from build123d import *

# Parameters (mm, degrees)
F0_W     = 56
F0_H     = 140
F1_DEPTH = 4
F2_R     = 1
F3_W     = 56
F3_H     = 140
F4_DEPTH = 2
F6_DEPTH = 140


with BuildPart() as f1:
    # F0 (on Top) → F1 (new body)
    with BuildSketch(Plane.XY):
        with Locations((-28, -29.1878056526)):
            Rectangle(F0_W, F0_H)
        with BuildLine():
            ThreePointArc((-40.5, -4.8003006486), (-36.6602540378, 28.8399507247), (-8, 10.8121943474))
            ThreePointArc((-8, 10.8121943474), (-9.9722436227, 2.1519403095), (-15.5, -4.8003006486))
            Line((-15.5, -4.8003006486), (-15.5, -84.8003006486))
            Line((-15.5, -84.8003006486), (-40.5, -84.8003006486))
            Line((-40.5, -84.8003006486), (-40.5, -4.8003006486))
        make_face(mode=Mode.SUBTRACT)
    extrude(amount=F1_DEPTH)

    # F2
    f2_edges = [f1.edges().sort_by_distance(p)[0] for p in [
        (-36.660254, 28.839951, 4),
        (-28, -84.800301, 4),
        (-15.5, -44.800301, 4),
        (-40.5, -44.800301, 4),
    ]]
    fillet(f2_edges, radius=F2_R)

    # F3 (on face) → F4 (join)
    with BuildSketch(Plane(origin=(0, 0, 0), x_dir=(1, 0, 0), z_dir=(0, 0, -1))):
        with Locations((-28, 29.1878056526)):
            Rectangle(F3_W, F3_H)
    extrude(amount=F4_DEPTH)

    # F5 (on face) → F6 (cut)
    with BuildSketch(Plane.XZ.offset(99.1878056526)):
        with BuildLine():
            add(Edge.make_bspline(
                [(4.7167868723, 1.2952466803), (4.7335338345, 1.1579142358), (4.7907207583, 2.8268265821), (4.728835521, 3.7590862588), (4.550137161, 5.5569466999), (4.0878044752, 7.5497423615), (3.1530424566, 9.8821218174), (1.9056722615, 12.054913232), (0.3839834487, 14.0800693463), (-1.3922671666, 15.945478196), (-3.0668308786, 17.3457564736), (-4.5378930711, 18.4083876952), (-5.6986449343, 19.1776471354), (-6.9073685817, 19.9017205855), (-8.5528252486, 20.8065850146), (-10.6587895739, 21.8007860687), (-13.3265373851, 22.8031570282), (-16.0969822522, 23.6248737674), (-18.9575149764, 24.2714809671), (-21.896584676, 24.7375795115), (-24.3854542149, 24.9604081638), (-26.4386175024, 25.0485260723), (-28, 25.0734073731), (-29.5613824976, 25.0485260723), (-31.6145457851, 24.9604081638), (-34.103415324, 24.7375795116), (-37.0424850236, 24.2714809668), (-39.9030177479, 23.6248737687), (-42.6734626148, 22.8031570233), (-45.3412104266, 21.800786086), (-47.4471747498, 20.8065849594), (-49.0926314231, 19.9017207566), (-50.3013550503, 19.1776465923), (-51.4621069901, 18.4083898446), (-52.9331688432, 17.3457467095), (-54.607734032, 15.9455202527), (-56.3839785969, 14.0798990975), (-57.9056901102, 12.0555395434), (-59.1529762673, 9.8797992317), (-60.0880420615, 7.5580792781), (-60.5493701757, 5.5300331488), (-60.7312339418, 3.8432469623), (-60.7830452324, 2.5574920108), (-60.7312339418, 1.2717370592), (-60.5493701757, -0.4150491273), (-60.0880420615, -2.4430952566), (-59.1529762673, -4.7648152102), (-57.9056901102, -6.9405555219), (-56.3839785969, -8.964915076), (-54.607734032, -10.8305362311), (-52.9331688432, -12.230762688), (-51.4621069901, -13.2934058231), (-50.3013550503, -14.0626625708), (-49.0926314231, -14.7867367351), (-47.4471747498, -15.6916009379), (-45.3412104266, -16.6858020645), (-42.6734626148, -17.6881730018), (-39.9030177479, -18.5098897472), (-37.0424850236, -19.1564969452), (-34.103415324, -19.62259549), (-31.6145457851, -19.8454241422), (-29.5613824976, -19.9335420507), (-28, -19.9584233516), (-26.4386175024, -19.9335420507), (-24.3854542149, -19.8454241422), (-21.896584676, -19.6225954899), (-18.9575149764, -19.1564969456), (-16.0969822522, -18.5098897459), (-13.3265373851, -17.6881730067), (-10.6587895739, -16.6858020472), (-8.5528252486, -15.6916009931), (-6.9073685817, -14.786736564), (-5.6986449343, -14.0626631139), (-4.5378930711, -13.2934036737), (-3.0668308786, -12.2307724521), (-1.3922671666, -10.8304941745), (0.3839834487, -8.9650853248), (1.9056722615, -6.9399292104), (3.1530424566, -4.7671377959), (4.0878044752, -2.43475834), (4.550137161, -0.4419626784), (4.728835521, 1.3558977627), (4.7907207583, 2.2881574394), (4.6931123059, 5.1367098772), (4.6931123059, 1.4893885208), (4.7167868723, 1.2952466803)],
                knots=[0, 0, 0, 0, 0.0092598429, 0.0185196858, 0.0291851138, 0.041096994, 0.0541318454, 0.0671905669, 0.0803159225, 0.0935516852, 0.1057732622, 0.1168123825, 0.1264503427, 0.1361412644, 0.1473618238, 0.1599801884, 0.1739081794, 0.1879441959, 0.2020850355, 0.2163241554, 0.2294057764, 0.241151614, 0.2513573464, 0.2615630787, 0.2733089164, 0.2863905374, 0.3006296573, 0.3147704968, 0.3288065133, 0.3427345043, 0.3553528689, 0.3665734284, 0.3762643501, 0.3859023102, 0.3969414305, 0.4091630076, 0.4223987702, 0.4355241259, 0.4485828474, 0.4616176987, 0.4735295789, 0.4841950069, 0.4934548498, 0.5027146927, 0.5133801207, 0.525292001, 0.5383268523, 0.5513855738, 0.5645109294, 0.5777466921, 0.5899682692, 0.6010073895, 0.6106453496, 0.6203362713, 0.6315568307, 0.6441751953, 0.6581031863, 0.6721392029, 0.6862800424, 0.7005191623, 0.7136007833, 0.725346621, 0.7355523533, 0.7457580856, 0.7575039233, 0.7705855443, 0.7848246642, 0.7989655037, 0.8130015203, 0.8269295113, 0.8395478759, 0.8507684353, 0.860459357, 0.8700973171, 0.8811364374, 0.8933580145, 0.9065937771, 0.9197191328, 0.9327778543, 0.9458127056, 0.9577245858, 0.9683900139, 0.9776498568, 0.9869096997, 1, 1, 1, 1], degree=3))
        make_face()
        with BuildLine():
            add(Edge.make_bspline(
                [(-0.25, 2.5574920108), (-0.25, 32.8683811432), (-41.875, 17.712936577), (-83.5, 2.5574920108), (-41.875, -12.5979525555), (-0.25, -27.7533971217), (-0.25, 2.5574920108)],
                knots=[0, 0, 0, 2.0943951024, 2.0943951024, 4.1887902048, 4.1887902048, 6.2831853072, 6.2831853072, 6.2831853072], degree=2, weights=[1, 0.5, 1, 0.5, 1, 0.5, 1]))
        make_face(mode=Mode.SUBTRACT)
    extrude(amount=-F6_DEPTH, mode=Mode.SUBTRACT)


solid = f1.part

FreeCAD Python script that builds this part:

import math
import FreeCAD as App
import Part
import Sketcher
from FreeCAD import Vector
Q = App.Units.Quantity


def edges_at(feature, points):
    """Names of the edges that pass closest to the given points."""
    edges = feature.Shape.Edges
    near = lambda p: min(range(len(edges)), key=lambda i: edges[i].distToShape(Part.Vertex(*p))[0])
    return sorted({f"Edge{near(p) + 1}" for p in points})


def add_polygon(sketch, points):
    """Adds a closed chain of lines whose ends are joined by coincident constraints."""
    first, n = sketch.GeometryCount, len(points)
    for a, b in zip(points, points[1:] + points[:1]):
        sketch.addGeometry(Part.LineSegment(App.Vector(*a, 0), App.Vector(*b, 0)), False)
    for i in range(n):
        sketch.addConstraint(Sketcher.Constraint("Coincident", first + i, 2, first + (i + 1) % n, 1))

doc = App.newDocument("Part")
body = doc.addObject("PartDesign::Body", "Body")

sketch1 = body.newObject("Sketcher::SketchObject", "Sketch")
sketch1.AttachmentSupport = (doc.getObject("XY_Plane"), [""])
sketch1.MapMode = "FlatFace"
add_polygon(sketch1, [(-56, 40.812194), (-56, -99.187806), (0, -99.187806), (0, 40.812194)])
sketch1.addGeometry(Part.LineSegment(Vector(-40.5, -84.800301, 0), Vector(-40.5, -4.800301, 0)), False)
sketch1.addGeometry(Part.ArcOfCircle(Part.Circle(Vector(-28, 10.812194, 0), Vector(0, 0, 1), 20), math.radians(-51.317813), math.radians(231.317813)), False)
sketch1.addGeometry(Part.LineSegment(Vector(-15.5, -4.800301, 0), Vector(-15.5, -84.800301, 0)), False)
sketch1.addGeometry(Part.LineSegment(Vector(-15.5, -84.800301, 0), Vector(-40.5, -84.800301, 0)), False)
sketch1.addConstraint(Sketcher.Constraint("Coincident", 4, 2, 5, 2))
sketch1.addConstraint(Sketcher.Constraint("Coincident", 5, 1, 6, 1))
sketch1.addConstraint(Sketcher.Constraint("Coincident", 6, 2, 7, 1))
sketch1.addConstraint(Sketcher.Constraint("Coincident", 7, 2, 4, 1))
sketch1.addConstraint(Sketcher.Constraint("Vertical", 0))
sketch1.addConstraint(Sketcher.Constraint("Horizontal", 1))
sketch1.addConstraint(Sketcher.Constraint("Vertical", 2))
sketch1.addConstraint(Sketcher.Constraint("Horizontal", 3))
sketch1.addConstraint(Sketcher.Constraint("Vertical", 4))
sketch1.addConstraint(Sketcher.Constraint("Vertical", 6))
sketch1.addConstraint(Sketcher.Constraint("Horizontal", 7))
sketch1.addConstraint(Sketcher.Constraint("PointOnObject", 1, 2, -2))
sketch1.addConstraint(Sketcher.Constraint("Horizontal", 4, 2, 5, 1))
sketch1.addConstraint(Sketcher.Constraint("Radius", 5, Q("20 mm")))
sketch1.addConstraint(Sketcher.Constraint("DistanceX", 1, 1, 1, 2, Q("56 mm")))
sketch1.addConstraint(Sketcher.Constraint("DistanceX", 7, 2, 7, 1, Q("25 mm")))
sketch1.addConstraint(Sketcher.Constraint("DistanceY", 0, 2, 0, 1, Q("140 mm")))
sketch1.addConstraint(Sketcher.Constraint("DistanceY", 4, 1, 4, 2, Q("80 mm")))
sketch1.addConstraint(Sketcher.Constraint("DistanceX", 5, 3, -1, 1, Q("28 mm")))
sketch1.addConstraint(Sketcher.Constraint("DistanceY", 0, 2, 5, 3, Q("110 mm")))
sketch1.addConstraint(Sketcher.Constraint("DistanceY", 4, 2, -1, 1, Q("4.800301 mm")))
pad1 = body.newObject("PartDesign::Pad", "Pad")
pad1.Profile = sketch1
pad1.Length = 4
doc.recompute()

fillet = body.newObject("PartDesign::Fillet", "Fillet")
fillet.Base = (pad1, edges_at(pad1, [
    (-28, 30.812, 4),
    (-28, -84.8, 4),
    (-15.5, -44.8, 4),
    (-40.5, -44.8, 4),
]))
fillet.Radius = 1

sketch2 = body.newObject("Sketcher::SketchObject", "Sketch001")
sketch2.AttachmentSupport = (doc.getObject("XY_Plane"), [""])
sketch2.MapMode = "FlatFace"
add_polygon(sketch2, [(-56, -99.187806), (-56, 40.812194), (0, 40.812194), (0, -99.187806)])
sketch2.addConstraint(Sketcher.Constraint("Vertical", 0))
sketch2.addConstraint(Sketcher.Constraint("Horizontal", 1))
sketch2.addConstraint(Sketcher.Constraint("Vertical", 2))
sketch2.addConstraint(Sketcher.Constraint("Horizontal", 3))
sketch2.addConstraint(Sketcher.Constraint("PointOnObject", 1, 2, -2))
sketch2.addConstraint(Sketcher.Constraint("DistanceX", 1, 1, 1, 2, Q("56 mm")))
sketch2.addConstraint(Sketcher.Constraint("DistanceY", 0, 1, 0, 2, Q("140 mm")))
sketch2.addConstraint(Sketcher.Constraint("DistanceY", -1, 1, 0, 2, Q("40.812194 mm")))
pad2 = body.newObject("PartDesign::Pad", "Pad001")
pad2.Profile = sketch2
pad2.Length = 2
pad2.Reversed = True

sketch3 = body.newObject("Sketcher::SketchObject", "Sketch002")
sketch3.AttachmentSupport = (doc.getObject("XZ_Plane"), [""])
sketch3.MapMode = "FlatFace"
sketch3.AttachmentOffset = App.Placement(Vector(0, 0, 99.187806), App.Rotation())
sketch3.addGeometry(Part.BSplineCurve([Vector(4.716787, 1.295247, 0), Vector(4.733534, 1.157914, 0), Vector(4.790721, 2.826827, 0), Vector(4.728836, 3.759086, 0), Vector(4.550137, 5.556947, 0), Vector(4.087804, 7.549742, 0), Vector(3.153042, 9.882122, 0), Vector(1.905672, 12.054913, 0), Vector(0.383983, 14.080069, 0), Vector(-1.392267, 15.945478, 0), Vector(-3.066831, 17.345756, 0), Vector(-4.537893, 18.408388, 0), Vector(-5.698645, 19.177647, 0), Vector(-6.907369, 19.901721, 0), Vector(-8.552825, 20.806585, 0), Vector(-10.65879, 21.800786, 0), Vector(-13.326537, 22.803157, 0), Vector(-16.096982, 23.624874, 0), Vector(-18.957515, 24.271481, 0), Vector(-21.896585, 24.73758, 0), Vector(-24.385454, 24.960408, 0), Vector(-26.438618, 25.048526, 0), Vector(-28, 25.073407, 0), Vector(-29.561382, 25.048526, 0), Vector(-31.614546, 24.960408, 0), Vector(-34.103415, 24.73758, 0), Vector(-37.042485, 24.271481, 0), Vector(-39.903018, 23.624874, 0), Vector(-42.673463, 22.803157, 0), Vector(-45.34121, 21.800786, 0), Vector(-47.447175, 20.806585, 0), Vector(-49.092631, 19.901721, 0), Vector(-50.301355, 19.177647, 0), Vector(-51.462107, 18.40839, 0), Vector(-52.933169, 17.345747, 0), Vector(-54.607734, 15.94552, 0), Vector(-56.383979, 14.079899, 0), Vector(-57.90569, 12.05554, 0), Vector(-59.152976, 9.879799, 0), Vector(-60.088042, 7.558079, 0), Vector(-60.54937, 5.530033, 0), Vector(-60.731234, 3.843247, 0), Vector(-60.783045, 2.557492, 0), Vector(-60.731234, 1.271737, 0), Vector(-60.54937, -0.415049, 0), Vector(-60.088042, -2.443095, 0), Vector(-59.152976, -4.764815, 0), Vector(-57.90569, -6.940556, 0), Vector(-56.383979, -8.964915, 0), Vector(-54.607734, -10.830536, 0), Vector(-52.933169, -12.230763, 0), Vector(-51.462107, -13.293406, 0), Vector(-50.301355, -14.062663, 0), Vector(-49.092631, -14.786737, 0), Vector(-47.447175, -15.691601, 0), Vector(-45.34121, -16.685802, 0), Vector(-42.673463, -17.688173, 0), Vector(-39.903018, -18.50989, 0), Vector(-37.042485, -19.156497, 0), Vector(-34.103415, -19.622595, 0), Vector(-31.614546, -19.845424, 0), Vector(-29.561382, -19.933542, 0), Vector(-28, -19.958423, 0), Vector(-26.438618, -19.933542, 0), Vector(-24.385454, -19.845424, 0), Vector(-21.896585, -19.622595, 0), Vector(-18.957515, -19.156497, 0), Vector(-16.096982, -18.50989, 0), Vector(-13.326537, -17.688173, 0), Vector(-10.65879, -16.685802, 0), Vector(-8.552825, -15.691601, 0), Vector(-6.907369, -14.786737, 0), Vector(-5.698645, -14.062663, 0), Vector(-4.537893, -13.293404, 0), Vector(-3.066831, -12.230772, 0), Vector(-1.392267, -10.830494, 0), Vector(0.383983, -8.965085, 0), Vector(1.905672, -6.939929, 0), Vector(3.153042, -4.767138, 0), Vector(4.087804, -2.434758, 0), Vector(4.550137, -0.441963, 0), Vector(4.728836, 1.355898, 0), Vector(4.790721, 2.288157, 0), Vector(4.693112, 5.13671, 0), Vector(4.693112, 1.489389, 0), Vector(4.716787, 1.295247, 0)], [4, 1, 1, 1, 1, 1, 1, 1, 1, 1, 1, 1, 1, 1, 1, 1, 1, 1, 1, 1, 1, 1, 1, 1, 1, 1, 1, 1, 1, 1, 1, 1, 1, 1, 1, 1, 1, 1, 1, 1, 1, 1, 1, 1, 1, 1, 1, 1, 1, 1, 1, 1, 1, 1, 1, 1, 1, 1, 1, 1, 1, 1, 1, 1, 1, 1, 1, 1, 1, 1, 1, 1, 1, 1, 1, 1, 1, 1, 1, 1, 1, 1, 1, 4], [0, 0.009259843, 0.018519686, 0.029185114, 0.041096994, 0.054131845, 0.067190567, 0.080315922, 0.093551685, 0.105773262, 0.116812383, 0.126450343, 0.136141264, 0.147361824, 0.159980188, 0.173908179, 0.187944196, 0.202085036, 0.216324155, 0.229405776, 0.241151614, 0.251357346, 0.261563079, 0.273308916, 0.286390537, 0.300629657, 0.314770497, 0.328806513, 0.342734504, 0.355352869, 0.366573428, 0.37626435, 0.38590231, 0.396941431, 0.409163008, 0.42239877, 0.435524126, 0.448582847, 0.461617699, 0.473529579, 0.484195007, 0.49345485, 0.502714693, 0.513380121, 0.525292001, 0.538326852, 0.551385574, 0.564510929, 0.577746692, 0.589968269, 0.601007389, 0.61064535, 0.620336271, 0.631556831, 0.644175195, 0.658103186, 0.672139203, 0.686280042, 0.700519162, 0.713600783, 0.725346621, 0.735552353, 0.745758086, 0.757503923, 0.770585544, 0.784824664, 0.798965504, 0.81300152, 0.826929511, 0.839547876, 0.850768435, 0.860459357, 0.870097317, 0.881136437, 0.893358014, 0.906593777, 0.919719133, 0.932777854, 0.945812706, 0.957724586, 0.968390014, 0.977649857, 0.9869097, 1], False, 3, [1, 1, 1, 1, 1, 1, 1, 1, 1, 1, 1, 1, 1, 1, 1, 1, 1, 1, 1, 1, 1, 1, 1, 1, 1, 1, 1, 1, 1, 1, 1, 1, 1, 1, 1, 1, 1, 1, 1, 1, 1, 1, 1, 1, 1, 1, 1, 1, 1, 1, 1, 1, 1, 1, 1, 1, 1, 1, 1, 1, 1, 1, 1, 1, 1, 1, 1, 1, 1, 1, 1, 1, 1, 1, 1, 1, 1, 1, 1, 1, 1, 1, 1, 1, 1, 1], False), False)
sketch3.addGeometry(Part.BSplineCurve([Vector(-0.25, 2.557492, 0), Vector(-0.25, 32.868381, 0), Vector(-41.875, 17.712937, 0), Vector(-83.5, 2.557492, 0), Vector(-41.875, -12.597953, 0), Vector(-0.25, -27.753397, 0), Vector(-0.25, 2.557492, 0)], [3, 2, 2, 3], [0, 2.094395102, 4.188790205, 6.283185307], False, 2, [1, 0.5, 1, 0.5, 1, 0.5, 1], False), False)
sketch3.addConstraint(Sketcher.Constraint("Block", 0))
sketch3.addConstraint(Sketcher.Constraint("Block", 1))
pocket1 = body.newObject("PartDesign::Pocket", "Pocket")
pocket1.Profile = sketch3
pocket1.Length = 140

doc.recompute()
